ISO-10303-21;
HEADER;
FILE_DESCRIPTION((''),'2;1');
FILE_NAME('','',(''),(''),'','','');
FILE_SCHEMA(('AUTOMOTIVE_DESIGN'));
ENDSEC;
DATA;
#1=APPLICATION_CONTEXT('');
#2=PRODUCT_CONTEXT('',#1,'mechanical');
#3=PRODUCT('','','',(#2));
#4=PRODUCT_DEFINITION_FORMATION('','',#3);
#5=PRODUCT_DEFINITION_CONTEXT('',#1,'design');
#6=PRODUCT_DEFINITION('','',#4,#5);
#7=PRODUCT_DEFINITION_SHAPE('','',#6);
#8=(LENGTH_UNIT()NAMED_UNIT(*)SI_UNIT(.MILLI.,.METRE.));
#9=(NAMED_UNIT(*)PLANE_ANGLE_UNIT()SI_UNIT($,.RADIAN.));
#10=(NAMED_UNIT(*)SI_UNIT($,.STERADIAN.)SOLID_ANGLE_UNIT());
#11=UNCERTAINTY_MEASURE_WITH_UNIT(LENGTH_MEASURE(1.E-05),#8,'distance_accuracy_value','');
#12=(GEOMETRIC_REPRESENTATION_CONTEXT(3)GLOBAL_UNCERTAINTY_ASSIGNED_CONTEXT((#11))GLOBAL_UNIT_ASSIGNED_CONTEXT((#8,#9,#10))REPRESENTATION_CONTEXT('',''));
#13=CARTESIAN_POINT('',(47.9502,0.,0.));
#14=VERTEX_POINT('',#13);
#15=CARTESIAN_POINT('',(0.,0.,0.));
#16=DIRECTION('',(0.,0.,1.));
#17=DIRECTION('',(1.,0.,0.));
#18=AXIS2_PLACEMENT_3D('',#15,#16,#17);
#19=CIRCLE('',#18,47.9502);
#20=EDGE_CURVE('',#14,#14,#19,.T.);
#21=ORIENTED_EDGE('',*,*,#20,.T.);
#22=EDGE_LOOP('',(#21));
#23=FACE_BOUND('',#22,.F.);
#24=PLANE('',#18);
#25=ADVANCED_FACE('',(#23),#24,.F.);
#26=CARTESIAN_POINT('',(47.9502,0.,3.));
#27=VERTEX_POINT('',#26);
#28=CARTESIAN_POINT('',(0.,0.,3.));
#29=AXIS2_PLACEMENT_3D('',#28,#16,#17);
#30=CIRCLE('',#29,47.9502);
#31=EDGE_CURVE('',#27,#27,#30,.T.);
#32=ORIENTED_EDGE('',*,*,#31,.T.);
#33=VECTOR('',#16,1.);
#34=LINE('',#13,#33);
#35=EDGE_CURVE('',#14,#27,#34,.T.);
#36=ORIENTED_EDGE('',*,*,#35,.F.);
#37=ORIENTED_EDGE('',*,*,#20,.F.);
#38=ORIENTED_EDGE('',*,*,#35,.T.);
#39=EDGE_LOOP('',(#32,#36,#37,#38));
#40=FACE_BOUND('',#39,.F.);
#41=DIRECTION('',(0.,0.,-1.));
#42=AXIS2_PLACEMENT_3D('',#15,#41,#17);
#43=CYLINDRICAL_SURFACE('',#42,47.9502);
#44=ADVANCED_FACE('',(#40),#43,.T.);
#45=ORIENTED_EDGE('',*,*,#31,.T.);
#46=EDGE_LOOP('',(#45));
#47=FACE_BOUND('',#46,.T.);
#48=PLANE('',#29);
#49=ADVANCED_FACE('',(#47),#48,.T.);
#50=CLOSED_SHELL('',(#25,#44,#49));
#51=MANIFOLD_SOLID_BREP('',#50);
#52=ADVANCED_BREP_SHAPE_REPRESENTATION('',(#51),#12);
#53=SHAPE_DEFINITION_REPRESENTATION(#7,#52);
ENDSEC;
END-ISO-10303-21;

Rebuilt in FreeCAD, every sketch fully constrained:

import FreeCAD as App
import Part
import Sketcher

V = App.Vector

doc = App.newDocument("Part")
body = doc.addObject("PartDesign::Body", "Body")

# Sketch on XY plane
sketch1 = doc.addObject("Sketcher::SketchObject", "Sketch")
body.addObject(sketch1)
sketch1.AttachmentSupport = (doc.XY_Plane, [""])
sketch1.MapMode = "FlatFace"
sketch1.addGeometry(Part.Circle(V(0, 0, 0), V(0, 0, 1), 48), False)
sketch1.addConstraint(Sketcher.Constraint("Coincident", 0, 3, -1, 1))
sketch1.addConstraint(Sketcher.Constraint("Diameter", 0, 95.9004))
pad1 = doc.addObject("PartDesign::Pad", "Pad")
body.addObject(pad1)
pad1.Profile = sketch1
pad1.Length = 3

doc.recompute()
